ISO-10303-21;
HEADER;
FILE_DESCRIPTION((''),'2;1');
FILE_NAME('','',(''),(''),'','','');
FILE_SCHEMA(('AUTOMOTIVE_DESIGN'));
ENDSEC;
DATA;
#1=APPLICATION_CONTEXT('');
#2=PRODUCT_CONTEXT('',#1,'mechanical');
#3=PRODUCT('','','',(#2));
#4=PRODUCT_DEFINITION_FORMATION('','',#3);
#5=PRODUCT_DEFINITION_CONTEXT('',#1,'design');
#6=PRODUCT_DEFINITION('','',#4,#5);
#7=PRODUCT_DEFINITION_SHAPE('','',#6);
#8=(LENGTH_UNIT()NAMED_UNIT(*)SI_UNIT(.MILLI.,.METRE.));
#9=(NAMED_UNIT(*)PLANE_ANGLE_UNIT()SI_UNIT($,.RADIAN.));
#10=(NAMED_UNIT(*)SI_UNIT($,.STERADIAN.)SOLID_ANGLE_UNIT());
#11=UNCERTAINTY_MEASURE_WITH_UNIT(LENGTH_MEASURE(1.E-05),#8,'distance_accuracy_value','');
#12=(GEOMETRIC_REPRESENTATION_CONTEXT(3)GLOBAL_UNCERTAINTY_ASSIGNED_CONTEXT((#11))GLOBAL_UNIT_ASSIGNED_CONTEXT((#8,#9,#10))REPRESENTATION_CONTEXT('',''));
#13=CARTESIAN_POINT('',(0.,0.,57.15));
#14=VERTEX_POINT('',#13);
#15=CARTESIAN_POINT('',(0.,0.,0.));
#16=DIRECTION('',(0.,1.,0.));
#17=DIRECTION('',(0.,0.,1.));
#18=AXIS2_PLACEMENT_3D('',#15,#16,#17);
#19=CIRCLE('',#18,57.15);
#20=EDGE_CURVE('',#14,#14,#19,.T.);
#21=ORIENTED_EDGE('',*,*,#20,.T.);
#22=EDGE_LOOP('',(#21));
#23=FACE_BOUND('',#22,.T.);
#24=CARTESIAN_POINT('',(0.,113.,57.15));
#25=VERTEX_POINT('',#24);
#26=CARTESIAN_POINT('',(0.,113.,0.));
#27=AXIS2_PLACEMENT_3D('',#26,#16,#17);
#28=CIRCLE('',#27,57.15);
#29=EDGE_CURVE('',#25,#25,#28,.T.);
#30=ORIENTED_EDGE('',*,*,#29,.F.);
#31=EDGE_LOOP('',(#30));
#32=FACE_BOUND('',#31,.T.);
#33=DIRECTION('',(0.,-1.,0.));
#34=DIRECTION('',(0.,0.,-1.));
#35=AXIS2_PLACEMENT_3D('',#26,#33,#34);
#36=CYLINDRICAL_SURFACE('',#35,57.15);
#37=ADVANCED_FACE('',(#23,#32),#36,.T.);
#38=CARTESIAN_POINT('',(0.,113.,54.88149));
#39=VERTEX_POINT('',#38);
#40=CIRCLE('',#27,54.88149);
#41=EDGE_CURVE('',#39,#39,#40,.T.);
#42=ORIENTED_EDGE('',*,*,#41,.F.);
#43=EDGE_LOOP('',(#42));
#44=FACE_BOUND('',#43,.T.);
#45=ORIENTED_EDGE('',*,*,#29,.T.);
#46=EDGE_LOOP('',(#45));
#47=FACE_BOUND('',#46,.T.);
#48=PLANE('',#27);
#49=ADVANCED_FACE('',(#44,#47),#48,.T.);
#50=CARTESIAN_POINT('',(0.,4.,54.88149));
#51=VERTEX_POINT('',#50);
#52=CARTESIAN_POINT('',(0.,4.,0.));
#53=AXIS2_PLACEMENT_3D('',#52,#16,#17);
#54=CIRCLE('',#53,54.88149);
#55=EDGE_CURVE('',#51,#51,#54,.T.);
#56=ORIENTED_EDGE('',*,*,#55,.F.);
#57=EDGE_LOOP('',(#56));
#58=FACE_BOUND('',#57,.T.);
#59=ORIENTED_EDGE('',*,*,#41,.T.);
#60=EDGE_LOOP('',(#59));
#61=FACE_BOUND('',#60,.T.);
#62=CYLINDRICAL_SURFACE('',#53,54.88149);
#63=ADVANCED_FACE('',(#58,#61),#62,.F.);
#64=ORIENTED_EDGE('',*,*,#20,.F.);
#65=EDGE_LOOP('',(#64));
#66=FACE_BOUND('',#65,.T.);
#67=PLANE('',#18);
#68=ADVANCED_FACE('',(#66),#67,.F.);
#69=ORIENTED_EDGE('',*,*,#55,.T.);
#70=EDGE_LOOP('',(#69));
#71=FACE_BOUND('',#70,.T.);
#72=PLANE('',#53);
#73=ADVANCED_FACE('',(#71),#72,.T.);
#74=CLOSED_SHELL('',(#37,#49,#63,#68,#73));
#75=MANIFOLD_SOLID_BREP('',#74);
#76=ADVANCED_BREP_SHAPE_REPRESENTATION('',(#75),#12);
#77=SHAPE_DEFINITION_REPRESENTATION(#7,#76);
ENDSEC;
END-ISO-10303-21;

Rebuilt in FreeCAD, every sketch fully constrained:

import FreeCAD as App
import Part
import Sketcher
from FreeCAD import Vector
Q = App.Units.Quantity

doc = App.newDocument("Part")
body = doc.addObject("PartDesign::Body", "Body")

# Sketch on XZ plane
sketch1 = body.newObject("Sketcher::SketchObject", "Sketch")
sketch1.AttachmentSupport = (doc.getObject("XZ_Plane"), [""])
sketch1.MapMode = "FlatFace"
sketch1.addGeometry(Part.Circle(Vector(0, 0, 0), Vector(0, 0, 1), 57), False)
sketch1.addConstraint([
    Sketcher.Constraint("Coincident", 0, 3, -1, 1),
    Sketcher.Constraint("Diameter", 0, Q("114.3 mm")),
])
pad1 = body.newObject("PartDesign::Pad", "Pad")
pad1.Profile = sketch1
pad1.Length = 113
pad1.Reversed = True

# Sketch on XZ plane
sketch2 = body.newObject("Sketcher::SketchObject", "Sketch001")
sketch2.AttachmentSupport = (doc.getObject("XZ_Plane"), [""])
sketch2.MapMode = "FlatFace"
sketch2.AttachmentOffset = App.Placement(Vector(0, 0, -113), App.Rotation())
sketch2.addGeometry(Part.Circle(Vector(0, 0, 0), Vector(0, 0, 1), 55), False)
sketch2.addConstraint([
    Sketcher.Constraint("Coincident", 0, 3, -1, 1),
    Sketcher.Constraint("Diameter", 0, Q("109.76298 mm")),
])
pocket1 = body.newObject("PartDesign::Pocket", "Pocket")
pocket1.Profile = sketch2
pocket1.Length = 109
pocket1.Reversed = True

doc.recompute()
